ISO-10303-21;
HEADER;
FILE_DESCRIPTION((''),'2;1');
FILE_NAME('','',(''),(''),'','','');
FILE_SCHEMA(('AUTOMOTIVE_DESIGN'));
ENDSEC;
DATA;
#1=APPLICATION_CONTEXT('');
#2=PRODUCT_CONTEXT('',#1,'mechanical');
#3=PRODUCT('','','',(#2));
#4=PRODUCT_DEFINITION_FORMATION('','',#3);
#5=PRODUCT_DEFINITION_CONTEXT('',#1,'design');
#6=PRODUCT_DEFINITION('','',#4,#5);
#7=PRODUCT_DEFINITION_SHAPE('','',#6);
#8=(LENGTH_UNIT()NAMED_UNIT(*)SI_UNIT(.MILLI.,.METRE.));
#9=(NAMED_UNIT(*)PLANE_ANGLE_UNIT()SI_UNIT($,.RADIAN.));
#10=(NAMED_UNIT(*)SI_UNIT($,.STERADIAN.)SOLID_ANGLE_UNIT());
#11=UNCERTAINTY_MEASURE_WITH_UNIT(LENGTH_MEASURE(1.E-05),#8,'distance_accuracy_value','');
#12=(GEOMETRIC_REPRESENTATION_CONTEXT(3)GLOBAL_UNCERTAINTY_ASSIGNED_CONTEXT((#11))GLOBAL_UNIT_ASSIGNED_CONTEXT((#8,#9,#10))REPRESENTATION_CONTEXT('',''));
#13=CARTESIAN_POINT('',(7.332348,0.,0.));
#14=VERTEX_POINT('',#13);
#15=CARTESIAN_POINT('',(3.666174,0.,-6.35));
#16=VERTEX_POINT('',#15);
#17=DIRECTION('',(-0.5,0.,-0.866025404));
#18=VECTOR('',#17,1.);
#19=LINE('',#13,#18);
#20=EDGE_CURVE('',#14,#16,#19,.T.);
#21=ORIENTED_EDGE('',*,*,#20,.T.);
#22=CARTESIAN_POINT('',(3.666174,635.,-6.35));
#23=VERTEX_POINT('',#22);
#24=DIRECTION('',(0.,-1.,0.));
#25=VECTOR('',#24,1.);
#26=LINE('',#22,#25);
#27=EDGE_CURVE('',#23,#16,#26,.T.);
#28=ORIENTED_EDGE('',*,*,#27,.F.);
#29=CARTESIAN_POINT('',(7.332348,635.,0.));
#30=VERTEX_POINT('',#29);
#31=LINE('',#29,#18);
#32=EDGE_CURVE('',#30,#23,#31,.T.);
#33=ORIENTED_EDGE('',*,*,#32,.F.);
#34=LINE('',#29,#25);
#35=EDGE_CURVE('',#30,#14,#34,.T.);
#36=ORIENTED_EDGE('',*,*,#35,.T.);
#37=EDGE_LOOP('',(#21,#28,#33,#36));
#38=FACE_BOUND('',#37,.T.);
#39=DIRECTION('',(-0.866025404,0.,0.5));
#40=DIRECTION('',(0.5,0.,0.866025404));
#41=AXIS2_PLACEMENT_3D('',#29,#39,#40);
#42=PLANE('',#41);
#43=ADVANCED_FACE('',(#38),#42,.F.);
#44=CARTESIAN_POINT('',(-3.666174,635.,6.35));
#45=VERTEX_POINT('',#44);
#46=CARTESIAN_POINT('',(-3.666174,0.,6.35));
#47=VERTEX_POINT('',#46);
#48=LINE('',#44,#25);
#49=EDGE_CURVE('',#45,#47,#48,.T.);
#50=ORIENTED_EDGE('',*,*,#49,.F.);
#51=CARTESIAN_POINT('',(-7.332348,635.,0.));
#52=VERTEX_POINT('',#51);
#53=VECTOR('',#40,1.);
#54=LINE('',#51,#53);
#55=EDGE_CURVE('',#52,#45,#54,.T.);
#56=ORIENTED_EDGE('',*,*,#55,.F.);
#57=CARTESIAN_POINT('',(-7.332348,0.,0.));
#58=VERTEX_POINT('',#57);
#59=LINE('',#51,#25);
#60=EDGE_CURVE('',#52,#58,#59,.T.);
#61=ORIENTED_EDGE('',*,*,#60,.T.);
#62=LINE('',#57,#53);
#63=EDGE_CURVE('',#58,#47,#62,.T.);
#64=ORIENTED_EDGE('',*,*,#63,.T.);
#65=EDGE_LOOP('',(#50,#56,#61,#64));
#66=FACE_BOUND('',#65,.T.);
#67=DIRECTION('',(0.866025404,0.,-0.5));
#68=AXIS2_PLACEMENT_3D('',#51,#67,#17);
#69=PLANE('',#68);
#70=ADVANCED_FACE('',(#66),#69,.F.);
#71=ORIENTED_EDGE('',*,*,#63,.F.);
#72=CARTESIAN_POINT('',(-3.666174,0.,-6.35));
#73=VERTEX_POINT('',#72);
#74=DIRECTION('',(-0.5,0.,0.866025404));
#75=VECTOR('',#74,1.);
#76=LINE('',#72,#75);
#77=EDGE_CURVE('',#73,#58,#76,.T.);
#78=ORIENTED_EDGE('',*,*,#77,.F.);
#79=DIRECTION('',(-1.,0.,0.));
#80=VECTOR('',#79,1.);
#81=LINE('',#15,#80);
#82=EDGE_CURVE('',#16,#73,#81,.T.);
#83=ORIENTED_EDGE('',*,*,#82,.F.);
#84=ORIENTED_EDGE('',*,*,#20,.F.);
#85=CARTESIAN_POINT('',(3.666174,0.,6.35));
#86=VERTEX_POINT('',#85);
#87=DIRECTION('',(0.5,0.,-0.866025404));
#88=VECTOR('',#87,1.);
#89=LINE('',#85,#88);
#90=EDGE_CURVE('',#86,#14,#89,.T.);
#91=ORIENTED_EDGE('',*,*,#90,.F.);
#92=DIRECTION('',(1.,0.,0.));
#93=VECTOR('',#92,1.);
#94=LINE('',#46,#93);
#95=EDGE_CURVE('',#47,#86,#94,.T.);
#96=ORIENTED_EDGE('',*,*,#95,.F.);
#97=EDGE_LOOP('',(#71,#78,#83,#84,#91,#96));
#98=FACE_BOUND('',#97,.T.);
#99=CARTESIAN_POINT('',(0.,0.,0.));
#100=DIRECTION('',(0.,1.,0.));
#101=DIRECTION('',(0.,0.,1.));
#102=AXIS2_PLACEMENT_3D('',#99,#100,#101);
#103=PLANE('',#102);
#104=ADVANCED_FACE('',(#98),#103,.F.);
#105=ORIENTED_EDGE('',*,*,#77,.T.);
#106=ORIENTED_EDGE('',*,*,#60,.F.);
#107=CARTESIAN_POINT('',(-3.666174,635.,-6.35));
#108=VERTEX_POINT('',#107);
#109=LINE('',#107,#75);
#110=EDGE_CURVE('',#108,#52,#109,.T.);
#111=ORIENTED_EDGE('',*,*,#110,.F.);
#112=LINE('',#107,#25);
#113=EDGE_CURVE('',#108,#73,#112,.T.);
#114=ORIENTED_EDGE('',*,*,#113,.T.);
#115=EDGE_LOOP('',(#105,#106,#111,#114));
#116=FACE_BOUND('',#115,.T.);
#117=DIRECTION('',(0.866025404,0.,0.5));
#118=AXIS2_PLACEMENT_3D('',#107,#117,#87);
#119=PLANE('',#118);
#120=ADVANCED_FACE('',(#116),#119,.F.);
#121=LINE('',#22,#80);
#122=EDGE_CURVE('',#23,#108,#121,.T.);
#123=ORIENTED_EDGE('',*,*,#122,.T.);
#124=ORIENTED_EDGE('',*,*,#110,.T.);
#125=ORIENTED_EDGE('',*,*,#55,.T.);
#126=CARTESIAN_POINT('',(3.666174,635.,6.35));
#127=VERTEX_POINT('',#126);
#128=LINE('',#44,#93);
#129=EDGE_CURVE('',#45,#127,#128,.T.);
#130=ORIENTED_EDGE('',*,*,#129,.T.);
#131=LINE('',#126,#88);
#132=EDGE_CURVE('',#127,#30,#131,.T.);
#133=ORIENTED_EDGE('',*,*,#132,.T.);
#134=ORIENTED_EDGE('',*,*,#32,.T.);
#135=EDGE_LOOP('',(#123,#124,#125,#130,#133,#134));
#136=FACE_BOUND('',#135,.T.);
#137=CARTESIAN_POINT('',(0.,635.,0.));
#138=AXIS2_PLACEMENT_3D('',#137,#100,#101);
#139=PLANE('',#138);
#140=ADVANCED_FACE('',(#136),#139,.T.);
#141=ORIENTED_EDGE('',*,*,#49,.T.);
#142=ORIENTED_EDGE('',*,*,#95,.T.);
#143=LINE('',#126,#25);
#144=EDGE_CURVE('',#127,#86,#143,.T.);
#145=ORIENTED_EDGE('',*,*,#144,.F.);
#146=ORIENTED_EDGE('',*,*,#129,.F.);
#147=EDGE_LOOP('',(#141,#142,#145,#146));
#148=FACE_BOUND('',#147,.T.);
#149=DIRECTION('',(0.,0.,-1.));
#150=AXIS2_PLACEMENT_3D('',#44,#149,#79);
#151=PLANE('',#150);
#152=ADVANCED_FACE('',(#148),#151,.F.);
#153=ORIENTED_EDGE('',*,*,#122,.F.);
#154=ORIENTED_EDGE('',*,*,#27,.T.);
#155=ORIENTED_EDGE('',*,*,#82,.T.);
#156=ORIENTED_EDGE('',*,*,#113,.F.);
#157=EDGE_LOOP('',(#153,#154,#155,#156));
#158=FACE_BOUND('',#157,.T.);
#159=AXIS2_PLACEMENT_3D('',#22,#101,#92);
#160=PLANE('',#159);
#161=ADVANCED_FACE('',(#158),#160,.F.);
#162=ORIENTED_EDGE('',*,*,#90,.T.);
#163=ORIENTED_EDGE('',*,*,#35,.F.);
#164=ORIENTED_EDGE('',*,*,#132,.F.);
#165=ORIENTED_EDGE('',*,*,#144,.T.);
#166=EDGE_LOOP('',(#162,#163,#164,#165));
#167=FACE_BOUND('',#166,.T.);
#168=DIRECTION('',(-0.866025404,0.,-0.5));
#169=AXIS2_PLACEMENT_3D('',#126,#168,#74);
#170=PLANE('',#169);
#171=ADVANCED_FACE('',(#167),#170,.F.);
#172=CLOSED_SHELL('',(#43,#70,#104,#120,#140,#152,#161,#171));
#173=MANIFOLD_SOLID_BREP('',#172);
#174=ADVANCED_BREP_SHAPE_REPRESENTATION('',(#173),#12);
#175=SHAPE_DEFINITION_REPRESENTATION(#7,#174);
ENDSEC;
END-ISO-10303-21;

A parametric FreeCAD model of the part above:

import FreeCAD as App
import Part
import Sketcher
from FreeCAD import Vector
Q = App.Units.Quantity

doc = App.newDocument("Part")
body = doc.addObject("PartDesign::Body", "Body")

# Sketch on XZ plane
sketch1 = body.newObject("Sketcher::SketchObject", "Sketch")
sketch1.AttachmentSupport = (doc.getObject("XZ_Plane"), [""])
sketch1.MapMode = "FlatFace"
sketch1.addGeometry([
    Part.LineSegment(Vector(4, 6, 0), Vector(7, 0, 0)),  # 0
    Part.LineSegment(Vector(7, 0, 0), Vector(4, -6, 0)),  # 1
    Part.LineSegment(Vector(4, -6, 0), Vector(-4, -6, 0)),  # 2
    Part.LineSegment(Vector(-4, -6, 0), Vector(-7, 0, 0)),  # 3
    Part.LineSegment(Vector(-7, 0, 0), Vector(-4, 6, 0)),  # 4
    Part.LineSegment(Vector(-4, 6, 0), Vector(4, 6, 0)),  # 5
], False)
sketch1.addConstraint([
    Sketcher.Constraint("Coincident", 0, 2, 1, 1),
    Sketcher.Constraint("Coincident", 1, 2, 2, 1),
    Sketcher.Constraint("Coincident", 2, 2, 3, 1),
    Sketcher.Constraint("Coincident", 3, 2, 4, 1),
    Sketcher.Constraint("Coincident", 4, 2, 5, 1),
    Sketcher.Constraint("Coincident", 5, 2, 0, 1),
    Sketcher.Constraint("Horizontal", 2),
    Sketcher.Constraint("Horizontal", 5),
    Sketcher.Constraint("Symmetric", 0, 2, 3, 2, -1, 1),
    Sketcher.Constraint("Symmetric", 1, 2, 4, 2, -1, 1),
    Sketcher.Constraint("PointOnObject", 0, 2, -1),
    Sketcher.Constraint("Parallel", 0, 3),
    Sketcher.Constraint("Vertical", 2, 2, 4, 2),
    Sketcher.Constraint("Angle", 0, Q("-60 deg")),
    Sketcher.Constraint("DistanceY", 2, 2, 4, 2, Q("0.5 in")),
    Sketcher.Constraint("DistanceX", 2, 2, 2, 1, 7.332348),
])
pad1 = body.newObject("PartDesign::Pad", "Pad")
pad1.Profile = sketch1
pad1.Length = Q("25 in")
pad1.Reversed = True

doc.recompute()
